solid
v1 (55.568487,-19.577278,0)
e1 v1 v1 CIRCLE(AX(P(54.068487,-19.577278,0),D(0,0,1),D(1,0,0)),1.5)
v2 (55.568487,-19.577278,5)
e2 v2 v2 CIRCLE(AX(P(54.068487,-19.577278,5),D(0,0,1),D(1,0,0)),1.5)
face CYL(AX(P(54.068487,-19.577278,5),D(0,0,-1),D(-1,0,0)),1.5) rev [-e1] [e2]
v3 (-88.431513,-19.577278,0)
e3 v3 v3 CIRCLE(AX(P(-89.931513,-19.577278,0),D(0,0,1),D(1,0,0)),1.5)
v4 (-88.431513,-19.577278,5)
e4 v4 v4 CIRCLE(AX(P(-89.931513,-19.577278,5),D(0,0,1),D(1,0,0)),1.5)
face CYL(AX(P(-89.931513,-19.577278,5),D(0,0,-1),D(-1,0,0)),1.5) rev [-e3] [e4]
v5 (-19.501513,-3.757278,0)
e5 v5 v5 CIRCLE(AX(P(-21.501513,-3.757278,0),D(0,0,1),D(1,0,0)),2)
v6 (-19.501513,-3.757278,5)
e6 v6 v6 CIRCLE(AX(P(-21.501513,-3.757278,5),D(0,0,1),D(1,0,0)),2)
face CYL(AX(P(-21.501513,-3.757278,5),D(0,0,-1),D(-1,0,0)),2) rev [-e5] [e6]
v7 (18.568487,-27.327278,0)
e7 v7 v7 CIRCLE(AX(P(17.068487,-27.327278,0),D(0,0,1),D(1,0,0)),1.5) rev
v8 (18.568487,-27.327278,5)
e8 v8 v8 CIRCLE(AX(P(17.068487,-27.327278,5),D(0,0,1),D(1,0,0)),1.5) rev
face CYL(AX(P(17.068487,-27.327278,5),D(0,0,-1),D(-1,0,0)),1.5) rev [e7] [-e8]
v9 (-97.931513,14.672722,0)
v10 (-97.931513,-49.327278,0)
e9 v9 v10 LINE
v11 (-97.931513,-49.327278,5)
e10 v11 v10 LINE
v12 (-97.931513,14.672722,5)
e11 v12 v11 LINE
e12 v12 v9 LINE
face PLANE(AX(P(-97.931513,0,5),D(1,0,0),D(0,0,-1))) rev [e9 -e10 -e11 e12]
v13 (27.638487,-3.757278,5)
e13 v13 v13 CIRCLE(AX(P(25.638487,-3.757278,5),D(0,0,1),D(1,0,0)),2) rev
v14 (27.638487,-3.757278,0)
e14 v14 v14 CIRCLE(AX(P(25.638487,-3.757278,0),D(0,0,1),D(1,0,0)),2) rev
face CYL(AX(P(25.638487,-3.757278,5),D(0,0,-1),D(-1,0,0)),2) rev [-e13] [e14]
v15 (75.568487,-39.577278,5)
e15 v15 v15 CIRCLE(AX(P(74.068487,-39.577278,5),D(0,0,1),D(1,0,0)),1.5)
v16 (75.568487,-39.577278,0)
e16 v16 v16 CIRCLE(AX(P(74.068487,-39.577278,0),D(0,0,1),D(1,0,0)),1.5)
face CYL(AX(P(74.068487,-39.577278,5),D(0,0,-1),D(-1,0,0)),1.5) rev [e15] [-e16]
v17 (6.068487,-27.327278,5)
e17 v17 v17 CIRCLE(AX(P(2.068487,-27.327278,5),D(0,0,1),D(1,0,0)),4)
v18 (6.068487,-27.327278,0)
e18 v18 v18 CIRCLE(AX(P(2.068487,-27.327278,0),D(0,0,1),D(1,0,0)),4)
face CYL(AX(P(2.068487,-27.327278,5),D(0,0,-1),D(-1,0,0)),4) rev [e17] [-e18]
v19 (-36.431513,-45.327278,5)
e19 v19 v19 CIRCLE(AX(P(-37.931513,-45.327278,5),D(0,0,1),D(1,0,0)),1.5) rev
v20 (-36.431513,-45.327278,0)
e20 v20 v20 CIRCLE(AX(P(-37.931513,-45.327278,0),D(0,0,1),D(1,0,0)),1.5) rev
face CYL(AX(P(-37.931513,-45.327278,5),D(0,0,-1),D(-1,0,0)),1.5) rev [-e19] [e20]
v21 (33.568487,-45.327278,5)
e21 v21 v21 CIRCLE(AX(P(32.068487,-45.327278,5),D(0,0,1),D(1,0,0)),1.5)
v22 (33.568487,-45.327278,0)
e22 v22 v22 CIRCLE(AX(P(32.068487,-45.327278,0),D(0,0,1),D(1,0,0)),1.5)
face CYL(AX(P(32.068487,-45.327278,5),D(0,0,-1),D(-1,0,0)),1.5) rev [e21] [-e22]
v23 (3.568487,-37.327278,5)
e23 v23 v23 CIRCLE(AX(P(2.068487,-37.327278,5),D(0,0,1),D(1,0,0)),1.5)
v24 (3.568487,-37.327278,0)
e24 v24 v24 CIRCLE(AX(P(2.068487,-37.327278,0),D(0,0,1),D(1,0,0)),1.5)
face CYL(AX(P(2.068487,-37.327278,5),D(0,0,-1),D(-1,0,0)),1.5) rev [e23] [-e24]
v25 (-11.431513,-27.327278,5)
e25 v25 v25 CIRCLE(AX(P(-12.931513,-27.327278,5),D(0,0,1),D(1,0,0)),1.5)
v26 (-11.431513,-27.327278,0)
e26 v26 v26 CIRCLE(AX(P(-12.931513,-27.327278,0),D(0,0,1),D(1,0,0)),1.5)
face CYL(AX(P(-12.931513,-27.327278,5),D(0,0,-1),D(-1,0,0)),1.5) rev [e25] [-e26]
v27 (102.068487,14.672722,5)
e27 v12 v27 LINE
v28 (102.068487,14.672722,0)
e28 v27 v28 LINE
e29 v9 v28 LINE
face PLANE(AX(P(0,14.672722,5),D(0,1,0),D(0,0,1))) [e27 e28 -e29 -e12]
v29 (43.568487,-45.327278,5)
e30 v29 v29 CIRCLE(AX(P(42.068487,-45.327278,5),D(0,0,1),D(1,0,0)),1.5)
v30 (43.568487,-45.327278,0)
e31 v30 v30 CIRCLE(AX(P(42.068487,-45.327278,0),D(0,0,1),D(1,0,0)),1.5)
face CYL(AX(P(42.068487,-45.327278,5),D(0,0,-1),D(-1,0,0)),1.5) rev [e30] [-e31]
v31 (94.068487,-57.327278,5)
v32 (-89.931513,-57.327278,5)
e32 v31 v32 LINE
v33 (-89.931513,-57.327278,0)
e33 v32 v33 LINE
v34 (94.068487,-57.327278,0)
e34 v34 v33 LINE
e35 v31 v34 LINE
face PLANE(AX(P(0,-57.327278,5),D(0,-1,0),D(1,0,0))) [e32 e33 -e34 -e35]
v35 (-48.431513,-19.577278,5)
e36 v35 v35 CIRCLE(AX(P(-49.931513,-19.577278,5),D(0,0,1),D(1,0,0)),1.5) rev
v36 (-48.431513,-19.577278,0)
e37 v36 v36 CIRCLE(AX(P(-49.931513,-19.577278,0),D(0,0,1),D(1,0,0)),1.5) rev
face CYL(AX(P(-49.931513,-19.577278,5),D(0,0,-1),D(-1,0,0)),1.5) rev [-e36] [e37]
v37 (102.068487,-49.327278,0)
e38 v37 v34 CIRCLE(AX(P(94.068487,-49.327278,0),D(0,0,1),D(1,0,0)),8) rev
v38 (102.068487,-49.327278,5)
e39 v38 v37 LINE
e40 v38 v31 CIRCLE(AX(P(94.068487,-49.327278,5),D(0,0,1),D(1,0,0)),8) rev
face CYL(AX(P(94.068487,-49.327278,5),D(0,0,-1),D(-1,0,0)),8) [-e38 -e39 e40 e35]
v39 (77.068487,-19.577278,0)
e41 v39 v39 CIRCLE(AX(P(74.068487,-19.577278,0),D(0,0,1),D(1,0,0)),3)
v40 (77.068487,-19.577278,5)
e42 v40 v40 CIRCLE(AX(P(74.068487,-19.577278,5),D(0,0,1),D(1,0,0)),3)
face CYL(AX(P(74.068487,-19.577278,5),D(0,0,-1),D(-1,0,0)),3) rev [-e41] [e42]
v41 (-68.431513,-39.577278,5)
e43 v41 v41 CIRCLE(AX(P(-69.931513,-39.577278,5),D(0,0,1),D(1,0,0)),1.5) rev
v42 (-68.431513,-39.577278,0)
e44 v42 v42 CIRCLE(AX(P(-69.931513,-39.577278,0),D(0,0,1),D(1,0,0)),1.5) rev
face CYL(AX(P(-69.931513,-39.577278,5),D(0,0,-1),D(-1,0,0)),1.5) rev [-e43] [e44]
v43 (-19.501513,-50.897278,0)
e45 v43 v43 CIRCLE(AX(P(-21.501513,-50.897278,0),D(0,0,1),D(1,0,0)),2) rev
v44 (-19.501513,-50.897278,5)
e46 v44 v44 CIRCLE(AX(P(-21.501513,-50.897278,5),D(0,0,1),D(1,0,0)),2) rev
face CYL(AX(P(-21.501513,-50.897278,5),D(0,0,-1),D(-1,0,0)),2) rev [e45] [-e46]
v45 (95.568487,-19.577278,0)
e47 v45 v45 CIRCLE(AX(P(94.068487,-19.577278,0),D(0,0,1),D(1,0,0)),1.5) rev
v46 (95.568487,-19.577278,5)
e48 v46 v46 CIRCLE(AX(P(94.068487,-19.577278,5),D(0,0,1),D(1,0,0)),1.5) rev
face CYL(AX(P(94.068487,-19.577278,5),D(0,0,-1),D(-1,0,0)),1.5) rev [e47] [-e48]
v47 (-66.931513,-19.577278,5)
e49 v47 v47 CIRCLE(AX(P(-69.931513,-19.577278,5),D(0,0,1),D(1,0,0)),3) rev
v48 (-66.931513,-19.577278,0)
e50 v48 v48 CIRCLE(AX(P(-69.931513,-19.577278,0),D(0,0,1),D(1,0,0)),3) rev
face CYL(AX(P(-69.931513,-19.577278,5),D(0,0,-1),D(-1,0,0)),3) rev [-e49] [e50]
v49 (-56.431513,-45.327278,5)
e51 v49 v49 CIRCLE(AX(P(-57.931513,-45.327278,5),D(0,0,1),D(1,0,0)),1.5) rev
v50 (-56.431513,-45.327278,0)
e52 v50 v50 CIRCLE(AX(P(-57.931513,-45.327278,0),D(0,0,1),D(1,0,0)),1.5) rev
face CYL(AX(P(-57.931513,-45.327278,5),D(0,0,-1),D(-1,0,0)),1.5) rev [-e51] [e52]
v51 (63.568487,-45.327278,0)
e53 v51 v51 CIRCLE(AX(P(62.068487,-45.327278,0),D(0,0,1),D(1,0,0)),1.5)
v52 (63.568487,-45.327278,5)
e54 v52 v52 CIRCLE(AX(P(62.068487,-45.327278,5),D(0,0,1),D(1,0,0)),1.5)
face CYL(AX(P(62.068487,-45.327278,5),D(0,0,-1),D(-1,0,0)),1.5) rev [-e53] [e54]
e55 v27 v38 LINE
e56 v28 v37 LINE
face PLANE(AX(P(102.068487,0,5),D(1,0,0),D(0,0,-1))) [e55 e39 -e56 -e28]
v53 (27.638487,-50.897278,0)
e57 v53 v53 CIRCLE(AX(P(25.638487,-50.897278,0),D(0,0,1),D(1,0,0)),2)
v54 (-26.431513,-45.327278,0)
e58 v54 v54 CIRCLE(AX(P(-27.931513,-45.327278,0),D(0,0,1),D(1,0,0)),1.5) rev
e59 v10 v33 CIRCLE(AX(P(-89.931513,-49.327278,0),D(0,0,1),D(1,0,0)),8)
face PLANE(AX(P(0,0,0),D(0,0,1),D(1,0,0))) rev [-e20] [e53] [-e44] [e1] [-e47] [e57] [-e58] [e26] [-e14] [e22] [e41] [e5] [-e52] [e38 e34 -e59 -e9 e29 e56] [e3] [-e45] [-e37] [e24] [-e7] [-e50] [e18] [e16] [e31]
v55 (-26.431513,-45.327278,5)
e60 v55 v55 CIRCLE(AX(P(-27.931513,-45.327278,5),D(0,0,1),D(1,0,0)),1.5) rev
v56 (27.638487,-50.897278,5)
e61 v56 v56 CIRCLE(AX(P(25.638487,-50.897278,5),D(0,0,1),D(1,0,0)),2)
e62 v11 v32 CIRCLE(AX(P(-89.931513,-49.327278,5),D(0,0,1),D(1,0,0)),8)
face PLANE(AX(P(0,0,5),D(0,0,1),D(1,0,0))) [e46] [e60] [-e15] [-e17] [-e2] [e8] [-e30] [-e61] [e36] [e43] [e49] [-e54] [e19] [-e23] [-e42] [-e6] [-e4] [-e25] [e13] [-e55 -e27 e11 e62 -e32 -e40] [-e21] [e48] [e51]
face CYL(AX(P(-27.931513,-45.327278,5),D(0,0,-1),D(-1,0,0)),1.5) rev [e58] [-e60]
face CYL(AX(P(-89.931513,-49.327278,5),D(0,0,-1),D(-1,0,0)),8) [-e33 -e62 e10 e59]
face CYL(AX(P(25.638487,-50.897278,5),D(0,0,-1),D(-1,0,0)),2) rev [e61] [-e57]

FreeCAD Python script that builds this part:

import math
import FreeCAD as App
import Part
import Sketcher
from FreeCAD import Vector
Q = App.Units.Quantity

doc = App.newDocument("Part")
body = doc.addObject("PartDesign::Body", "Body")

sketch1 = doc.addObject("Sketcher::SketchObject", "Sketch")
body.addObject(sketch1)
sketch1.AttachmentSupport = (doc.XY_Plane, [""])
sketch1.MapMode = "FlatFace"
sketch1.addGeometry([
    Part.ArcOfCircle(Part.Circle(Vector(94.1, -49.3, 0), Vector(0, 0, 1), 8), math.radians(-90), math.radians(0)),
    Part.LineSegment(Vector(102.1, -49.3, 0), Vector(102.1, 14.7, 0)),
    Part.LineSegment(Vector(102.1, 14.7, 0), Vector(-97.9, 14.7, 0)),
    Part.LineSegment(Vector(-97.9, 14.7, 0), Vector(-97.9, -49.3, 0)),
    Part.ArcOfCircle(Part.Circle(Vector(-89.9, -49.3, 0), Vector(0, 0, 1), 8), math.radians(-180), math.radians(-90)),
    Part.LineSegment(Vector(-89.9, -57.3, 0), Vector(94.1, -57.3, 0)),
    Part.Circle(Vector(62.1, -45.3, 0), Vector(0, 0, 1), 1.5),
    Part.Circle(Vector(25.6, -50.9, 0), Vector(0, 0, 1), 2),
    Part.Circle(Vector(42.1, -45.3, 0), Vector(0, 0, 1), 1.5),
    Part.Circle(Vector(32.1, -45.3, 0), Vector(0, 0, 1), 1.5),
    Part.Circle(Vector(74.1, -39.6, 0), Vector(0, 0, 1), 1.5),
    Part.Circle(Vector(2.1, -37.3, 0), Vector(0, 0, 1), 1.5),
    Part.Circle(Vector(-21.5, -50.9, 0), Vector(0, 0, 1), 2),
    Part.Circle(Vector(-27.9, -45.3, 0), Vector(0, 0, 1), 1.5),
    Part.Circle(Vector(-37.9, -45.3, 0), Vector(0, 0, 1), 1.5),
    Part.Circle(Vector(-57.9, -45.3, 0), Vector(0, 0, 1), 1.5),
    Part.Circle(Vector(-69.9, -39.6, 0), Vector(0, 0, 1), 1.5),
    Part.Circle(Vector(94.1, -19.6, 0), Vector(0, 0, 1), 1.5),
    Part.Circle(Vector(74.1, -19.6, 0), Vector(0, 0, 1), 3),
    Part.Circle(Vector(54.1, -19.6, 0), Vector(0, 0, 1), 1.5),
    Part.Circle(Vector(17.1, -27.3, 0), Vector(0, 0, 1), 1.5),
    Part.Circle(Vector(2.1, -27.3, 0), Vector(0, 0, 1), 4),
    Part.Circle(Vector(25.6, -3.8, 0), Vector(0, 0, 1), 2),
    Part.Circle(Vector(-12.9, -27.3, 0), Vector(0, 0, 1), 1.5),
    Part.Circle(Vector(-49.9, -19.6, 0), Vector(0, 0, 1), 1.5),
    Part.Circle(Vector(-69.9, -19.6, 0), Vector(0, 0, 1), 3),
    Part.Circle(Vector(-89.9, -19.6, 0), Vector(0, 0, 1), 1.5),
    Part.Circle(Vector(-21.5, -3.8, 0), Vector(0, 0, 1), 2),
], False)
sketch1.addConstraint([
    Sketcher.Constraint("Tangent", 0, 2, 1, 1),
    Sketcher.Constraint("Coincident", 1, 2, 2, 1),
    Sketcher.Constraint("Coincident", 2, 2, 3, 1),
    Sketcher.Constraint("Tangent", 3, 2, 4, 1),
    Sketcher.Constraint("Tangent", 4, 2, 5, 1),
    Sketcher.Constraint("Tangent", 5, 2, 0, 1),
    Sketcher.Constraint("Vertical", 1),
    Sketcher.Constraint("Horizontal", 2),
    Sketcher.Constraint("Vertical", 3),
    Sketcher.Constraint("Horizontal", 5),
    Sketcher.Constraint("Equal", 0, 4),
    Sketcher.Constraint("Equal", 6, 8),
    Sketcher.Constraint("Equal", 8, 9),
    Sketcher.Constraint("Equal", 9, 10),
    Sketcher.Constraint("Equal", 10, 11),
    Sketcher.Constraint("Equal", 7, 12),
    Sketcher.Constraint("Equal", 11, 13),
    Sketcher.Constraint("Equal", 13, 14),
    Sketcher.Constraint("Equal", 14, 15),
    Sketcher.Constraint("Equal", 15, 16),
    Sketcher.Constraint("Equal", 16, 17),
    Sketcher.Constraint("Equal", 17, 19),
    Sketcher.Constraint("Equal", 19, 20),
    Sketcher.Constraint("Equal", 12, 22),
    Sketcher.Constraint("Equal", 20, 23),
    Sketcher.Constraint("Equal", 23, 24),
    Sketcher.Constraint("Equal", 18, 25),
    Sketcher.Constraint("Equal", 24, 26),
    Sketcher.Constraint("Equal", 22, 27),
    Sketcher.Constraint("Horizontal", 6, 3, 8, 3),
    Sketcher.Constraint("Horizontal", 8, 3, 9, 3),
    Sketcher.Constraint("Horizontal", 7, 3, 12, 3),
    Sketcher.Constraint("Horizontal", 9, 3, 13, 3),
    Sketcher.Constraint("Horizontal", 13, 3, 14, 3),
    Sketcher.Constraint("Horizontal", 14, 3, 15, 3),
    Sketcher.Constraint("Horizontal", 10, 3, 16, 3),
    Sketcher.Constraint("Horizontal", 17, 3, 18, 3),
    Sketcher.Constraint("Horizontal", 18, 3, 19, 3),
    Sketcher.Constraint("Horizontal", 20, 3, 21, 3),
    Sketcher.Constraint("Horizontal", 21, 3, 23, 3),
    Sketcher.Constraint("Horizontal", 19, 3, 24, 3),
    Sketcher.Constraint("Horizontal", 24, 3, 25, 3),
    Sketcher.Constraint("Horizontal", 25, 3, 26, 3),
    Sketcher.Constraint("Horizontal", 22, 3, 27, 3),
    Sketcher.Constraint("Vertical", 0, 3, 17, 3),
    Sketcher.Constraint("Vertical", 10, 3, 18, 3),
    Sketcher.Constraint("Vertical", 11, 3, 21, 3),
    Sketcher.Constraint("Vertical", 7, 3, 22, 3),
    Sketcher.Constraint("Vertical", 16, 3, 25, 3),
    Sketcher.Constraint("Vertical", 4, 3, 26, 3),
    Sketcher.Constraint("Vertical", 12, 3, 27, 3),
    Sketcher.Constraint("Diameter", 6, Q("3 mm")),
    Sketcher.Constraint("Diameter", 7, Q("4 mm")),
    Sketcher.Constraint("Diameter", 18, Q("6 mm")),
    Sketcher.Constraint("Diameter", 21, Q("8 mm")),
    Sketcher.Constraint("Radius", 0, Q("8 mm")),
    Sketcher.Constraint("DistanceX", 2, 2, 2, 1, Q("200 mm")),
    Sketcher.Constraint("DistanceY", 1, 1, 1, 2, Q("64 mm")),
    Sketcher.Constraint("DistanceX", 6, 3, 0, 3, Q("32 mm")),
    Sketcher.Constraint("DistanceY", 0, 3, 6, 3, Q("4 mm")),
    Sketcher.Constraint("DistanceX", 8, 3, 6, 3, Q("20 mm")),
    Sketcher.Constraint("DistanceX", 9, 3, 8, 3, Q("10 mm")),
    Sketcher.Constraint("DistanceX", 6, 3, 10, 3, Q("12 mm")),
    Sketcher.Constraint("DistanceX", 11, 3, 9, 3, Q("30 mm")),
    Sketcher.Constraint("DistanceY", 9, 3, 11, 3, Q("8 mm")),
    Sketcher.Constraint("DistanceX", 13, 3, 11, 3, Q("30 mm")),
    Sketcher.Constraint("DistanceX", 14, 3, 13, 3, Q("10 mm")),
    Sketcher.Constraint("DistanceX", 15, 3, 14, 3, Q("20 mm")),
    Sketcher.Constraint("DistanceX", 16, 3, 15, 3, Q("12 mm")),
    Sketcher.Constraint("DistanceY", 10, 3, 17, 3, Q("20 mm")),
    Sketcher.Constraint("DistanceX", 19, 3, 18, 3, Q("20 mm")),
    Sketcher.Constraint("DistanceX", 11, 3, 20, 3, Q("15 mm")),
    Sketcher.Constraint("DistanceY", 11, 3, 20, 3, Q("10 mm")),
    Sketcher.Constraint("DistanceX", 23, 3, 21, 3, Q("15 mm")),
    Sketcher.Constraint("DistanceX", 15, 3, 24, 3, Q("8 mm")),
    Sketcher.Constraint("DistanceX", 7, 3, 6, 3, Q("36.43 mm")),
    Sketcher.Constraint("DistanceY", 7, 3, 6, 3, Q("5.57 mm")),
    Sketcher.Constraint("DistanceY", 6, 3, 10, 3, Q("5.75 mm")),
    Sketcher.Constraint("DistanceX", 12, 3, 11, 3, Q("23.57 mm")),
    Sketcher.Constraint("DistanceY", 20, 3, 22, 3, Q("23.57 mm")),
    Sketcher.Constraint("DistanceX", -1, 1, 0, 3, Q("94.068487 mm")),
    Sketcher.Constraint("DistanceY", 0, 3, -1, 1, Q("49.327278 mm")),
])
pad1 = doc.addObject("PartDesign::Pad", "Pad")
body.addObject(pad1)
pad1.Profile = sketch1
pad1.Length = 5

doc.recompute()
